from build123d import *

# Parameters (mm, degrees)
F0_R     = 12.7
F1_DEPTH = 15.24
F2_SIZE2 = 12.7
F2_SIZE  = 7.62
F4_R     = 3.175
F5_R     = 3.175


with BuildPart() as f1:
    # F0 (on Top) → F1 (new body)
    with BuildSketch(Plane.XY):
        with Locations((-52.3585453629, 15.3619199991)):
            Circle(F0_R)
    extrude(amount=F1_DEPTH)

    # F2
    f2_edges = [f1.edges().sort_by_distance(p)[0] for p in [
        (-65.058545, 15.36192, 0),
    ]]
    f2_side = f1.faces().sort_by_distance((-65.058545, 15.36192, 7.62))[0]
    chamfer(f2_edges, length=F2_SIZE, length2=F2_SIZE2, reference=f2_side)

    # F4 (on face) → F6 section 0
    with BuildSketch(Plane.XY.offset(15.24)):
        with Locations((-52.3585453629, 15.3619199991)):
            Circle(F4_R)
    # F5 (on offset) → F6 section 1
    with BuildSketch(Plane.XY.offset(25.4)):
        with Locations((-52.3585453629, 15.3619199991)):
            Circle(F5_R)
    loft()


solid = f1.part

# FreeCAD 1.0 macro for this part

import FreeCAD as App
import Part
import Sketcher
Q = App.Units.Quantity


def edges_at(feature, points):
    """Names of the edges that pass closest to the given points."""
    edges = feature.Shape.Edges
    near = lambda p: min(range(len(edges)), key=lambda i: edges[i].distToShape(Part.Vertex(*p))[0])
    return sorted({f"Edge{near(p) + 1}" for p in points})

doc = App.newDocument("Part")
body = doc.addObject("PartDesign::Body", "Body")

sketch1 = doc.addObject("Sketcher::SketchObject", "Sketch")
body.addObject(sketch1)
sketch1.AttachmentSupport = (doc.XY_Plane, [""])
sketch1.MapMode = "FlatFace"
sketch1.addGeometry(Part.Circle(App.Vector(-52, 15, 0), App.Vector(0, 0, 1), 13), False)
sketch1.addConstraint(Sketcher.Constraint("Diameter", 0, Q("1 in")))
sketch1.addConstraint(Sketcher.Constraint("DistanceY", -1, 1, 0, 3, Q("0.6048 in")))
sketch1.addConstraint(Sketcher.Constraint("DistanceX", 0, 3, -1, 1, Q("52.358545 mm")))
pad1 = doc.addObject("PartDesign::Pad", "Pad")
body.addObject(pad1)
pad1.Profile = sketch1
pad1.Length = Q("0.6 in")
doc.recompute()

chamfer = doc.addObject("PartDesign::Chamfer", "Chamfer")
body.addObject(chamfer)
chamfer.Base = (pad1, edges_at(pad1, [(-65.059, 15.362, 0)]))
chamfer.ChamferType = "Two distances"
chamfer.Size = Q("0.3 in")
chamfer.Size2 = Q("0.5 in")

sketch2 = doc.addObject("Sketcher::SketchObject", "Sketch001")
body.addObject(sketch2)
sketch2.AttachmentSupport = (doc.XY_Plane, [""])
sketch2.MapMode = "FlatFace"
sketch2.AttachmentOffset = App.Placement(App.Vector(0, 0, 0.6 * 25.4), App.Rotation())
sketch2.addGeometry(Part.Circle(App.Vector(-52.4, 15.4, 0), App.Vector(0, 0, 1), 3.2), False)
sketch2.addConstraint(Sketcher.Constraint("Diameter", 0, Q("0.25 in")))
sketch2.addConstraint(Sketcher.Constraint("DistanceY", -1, 1, 0, 3, Q("0.6048 in")))
sketch2.addConstraint(Sketcher.Constraint("DistanceX", 0, 3, -1, 1, Q("52.358545 mm")))

sketch3 = doc.addObject("Sketcher::SketchObject", "Sketch002")
body.addObject(sketch3)
sketch3.AttachmentSupport = (doc.XY_Plane, [""])
sketch3.MapMode = "FlatFace"
sketch3.AttachmentOffset = App.Placement(App.Vector(0, 0, 1 * 25.4), App.Rotation())
sketch3.addGeometry(Part.Circle(App.Vector(-52.4, 15.4, 0), App.Vector(0, 0, 1), 3.2), False)
sketch3.addConstraint(Sketcher.Constraint("Diameter", 0, Q("0.25 in")))
sketch3.addConstraint(Sketcher.Constraint("DistanceY", -1, 1, 0, 3, Q("0.6048 in")))
sketch3.addConstraint(Sketcher.Constraint("DistanceX", 0, 3, -1, 1, Q("52.358545 mm")))

additiveloft = doc.addObject("PartDesign::AdditiveLoft", "AdditiveLoft")
body.addObject(additiveloft)
additiveloft.Profile = sketch2
additiveloft.Sections = [sketch3]

doc.recompute()
